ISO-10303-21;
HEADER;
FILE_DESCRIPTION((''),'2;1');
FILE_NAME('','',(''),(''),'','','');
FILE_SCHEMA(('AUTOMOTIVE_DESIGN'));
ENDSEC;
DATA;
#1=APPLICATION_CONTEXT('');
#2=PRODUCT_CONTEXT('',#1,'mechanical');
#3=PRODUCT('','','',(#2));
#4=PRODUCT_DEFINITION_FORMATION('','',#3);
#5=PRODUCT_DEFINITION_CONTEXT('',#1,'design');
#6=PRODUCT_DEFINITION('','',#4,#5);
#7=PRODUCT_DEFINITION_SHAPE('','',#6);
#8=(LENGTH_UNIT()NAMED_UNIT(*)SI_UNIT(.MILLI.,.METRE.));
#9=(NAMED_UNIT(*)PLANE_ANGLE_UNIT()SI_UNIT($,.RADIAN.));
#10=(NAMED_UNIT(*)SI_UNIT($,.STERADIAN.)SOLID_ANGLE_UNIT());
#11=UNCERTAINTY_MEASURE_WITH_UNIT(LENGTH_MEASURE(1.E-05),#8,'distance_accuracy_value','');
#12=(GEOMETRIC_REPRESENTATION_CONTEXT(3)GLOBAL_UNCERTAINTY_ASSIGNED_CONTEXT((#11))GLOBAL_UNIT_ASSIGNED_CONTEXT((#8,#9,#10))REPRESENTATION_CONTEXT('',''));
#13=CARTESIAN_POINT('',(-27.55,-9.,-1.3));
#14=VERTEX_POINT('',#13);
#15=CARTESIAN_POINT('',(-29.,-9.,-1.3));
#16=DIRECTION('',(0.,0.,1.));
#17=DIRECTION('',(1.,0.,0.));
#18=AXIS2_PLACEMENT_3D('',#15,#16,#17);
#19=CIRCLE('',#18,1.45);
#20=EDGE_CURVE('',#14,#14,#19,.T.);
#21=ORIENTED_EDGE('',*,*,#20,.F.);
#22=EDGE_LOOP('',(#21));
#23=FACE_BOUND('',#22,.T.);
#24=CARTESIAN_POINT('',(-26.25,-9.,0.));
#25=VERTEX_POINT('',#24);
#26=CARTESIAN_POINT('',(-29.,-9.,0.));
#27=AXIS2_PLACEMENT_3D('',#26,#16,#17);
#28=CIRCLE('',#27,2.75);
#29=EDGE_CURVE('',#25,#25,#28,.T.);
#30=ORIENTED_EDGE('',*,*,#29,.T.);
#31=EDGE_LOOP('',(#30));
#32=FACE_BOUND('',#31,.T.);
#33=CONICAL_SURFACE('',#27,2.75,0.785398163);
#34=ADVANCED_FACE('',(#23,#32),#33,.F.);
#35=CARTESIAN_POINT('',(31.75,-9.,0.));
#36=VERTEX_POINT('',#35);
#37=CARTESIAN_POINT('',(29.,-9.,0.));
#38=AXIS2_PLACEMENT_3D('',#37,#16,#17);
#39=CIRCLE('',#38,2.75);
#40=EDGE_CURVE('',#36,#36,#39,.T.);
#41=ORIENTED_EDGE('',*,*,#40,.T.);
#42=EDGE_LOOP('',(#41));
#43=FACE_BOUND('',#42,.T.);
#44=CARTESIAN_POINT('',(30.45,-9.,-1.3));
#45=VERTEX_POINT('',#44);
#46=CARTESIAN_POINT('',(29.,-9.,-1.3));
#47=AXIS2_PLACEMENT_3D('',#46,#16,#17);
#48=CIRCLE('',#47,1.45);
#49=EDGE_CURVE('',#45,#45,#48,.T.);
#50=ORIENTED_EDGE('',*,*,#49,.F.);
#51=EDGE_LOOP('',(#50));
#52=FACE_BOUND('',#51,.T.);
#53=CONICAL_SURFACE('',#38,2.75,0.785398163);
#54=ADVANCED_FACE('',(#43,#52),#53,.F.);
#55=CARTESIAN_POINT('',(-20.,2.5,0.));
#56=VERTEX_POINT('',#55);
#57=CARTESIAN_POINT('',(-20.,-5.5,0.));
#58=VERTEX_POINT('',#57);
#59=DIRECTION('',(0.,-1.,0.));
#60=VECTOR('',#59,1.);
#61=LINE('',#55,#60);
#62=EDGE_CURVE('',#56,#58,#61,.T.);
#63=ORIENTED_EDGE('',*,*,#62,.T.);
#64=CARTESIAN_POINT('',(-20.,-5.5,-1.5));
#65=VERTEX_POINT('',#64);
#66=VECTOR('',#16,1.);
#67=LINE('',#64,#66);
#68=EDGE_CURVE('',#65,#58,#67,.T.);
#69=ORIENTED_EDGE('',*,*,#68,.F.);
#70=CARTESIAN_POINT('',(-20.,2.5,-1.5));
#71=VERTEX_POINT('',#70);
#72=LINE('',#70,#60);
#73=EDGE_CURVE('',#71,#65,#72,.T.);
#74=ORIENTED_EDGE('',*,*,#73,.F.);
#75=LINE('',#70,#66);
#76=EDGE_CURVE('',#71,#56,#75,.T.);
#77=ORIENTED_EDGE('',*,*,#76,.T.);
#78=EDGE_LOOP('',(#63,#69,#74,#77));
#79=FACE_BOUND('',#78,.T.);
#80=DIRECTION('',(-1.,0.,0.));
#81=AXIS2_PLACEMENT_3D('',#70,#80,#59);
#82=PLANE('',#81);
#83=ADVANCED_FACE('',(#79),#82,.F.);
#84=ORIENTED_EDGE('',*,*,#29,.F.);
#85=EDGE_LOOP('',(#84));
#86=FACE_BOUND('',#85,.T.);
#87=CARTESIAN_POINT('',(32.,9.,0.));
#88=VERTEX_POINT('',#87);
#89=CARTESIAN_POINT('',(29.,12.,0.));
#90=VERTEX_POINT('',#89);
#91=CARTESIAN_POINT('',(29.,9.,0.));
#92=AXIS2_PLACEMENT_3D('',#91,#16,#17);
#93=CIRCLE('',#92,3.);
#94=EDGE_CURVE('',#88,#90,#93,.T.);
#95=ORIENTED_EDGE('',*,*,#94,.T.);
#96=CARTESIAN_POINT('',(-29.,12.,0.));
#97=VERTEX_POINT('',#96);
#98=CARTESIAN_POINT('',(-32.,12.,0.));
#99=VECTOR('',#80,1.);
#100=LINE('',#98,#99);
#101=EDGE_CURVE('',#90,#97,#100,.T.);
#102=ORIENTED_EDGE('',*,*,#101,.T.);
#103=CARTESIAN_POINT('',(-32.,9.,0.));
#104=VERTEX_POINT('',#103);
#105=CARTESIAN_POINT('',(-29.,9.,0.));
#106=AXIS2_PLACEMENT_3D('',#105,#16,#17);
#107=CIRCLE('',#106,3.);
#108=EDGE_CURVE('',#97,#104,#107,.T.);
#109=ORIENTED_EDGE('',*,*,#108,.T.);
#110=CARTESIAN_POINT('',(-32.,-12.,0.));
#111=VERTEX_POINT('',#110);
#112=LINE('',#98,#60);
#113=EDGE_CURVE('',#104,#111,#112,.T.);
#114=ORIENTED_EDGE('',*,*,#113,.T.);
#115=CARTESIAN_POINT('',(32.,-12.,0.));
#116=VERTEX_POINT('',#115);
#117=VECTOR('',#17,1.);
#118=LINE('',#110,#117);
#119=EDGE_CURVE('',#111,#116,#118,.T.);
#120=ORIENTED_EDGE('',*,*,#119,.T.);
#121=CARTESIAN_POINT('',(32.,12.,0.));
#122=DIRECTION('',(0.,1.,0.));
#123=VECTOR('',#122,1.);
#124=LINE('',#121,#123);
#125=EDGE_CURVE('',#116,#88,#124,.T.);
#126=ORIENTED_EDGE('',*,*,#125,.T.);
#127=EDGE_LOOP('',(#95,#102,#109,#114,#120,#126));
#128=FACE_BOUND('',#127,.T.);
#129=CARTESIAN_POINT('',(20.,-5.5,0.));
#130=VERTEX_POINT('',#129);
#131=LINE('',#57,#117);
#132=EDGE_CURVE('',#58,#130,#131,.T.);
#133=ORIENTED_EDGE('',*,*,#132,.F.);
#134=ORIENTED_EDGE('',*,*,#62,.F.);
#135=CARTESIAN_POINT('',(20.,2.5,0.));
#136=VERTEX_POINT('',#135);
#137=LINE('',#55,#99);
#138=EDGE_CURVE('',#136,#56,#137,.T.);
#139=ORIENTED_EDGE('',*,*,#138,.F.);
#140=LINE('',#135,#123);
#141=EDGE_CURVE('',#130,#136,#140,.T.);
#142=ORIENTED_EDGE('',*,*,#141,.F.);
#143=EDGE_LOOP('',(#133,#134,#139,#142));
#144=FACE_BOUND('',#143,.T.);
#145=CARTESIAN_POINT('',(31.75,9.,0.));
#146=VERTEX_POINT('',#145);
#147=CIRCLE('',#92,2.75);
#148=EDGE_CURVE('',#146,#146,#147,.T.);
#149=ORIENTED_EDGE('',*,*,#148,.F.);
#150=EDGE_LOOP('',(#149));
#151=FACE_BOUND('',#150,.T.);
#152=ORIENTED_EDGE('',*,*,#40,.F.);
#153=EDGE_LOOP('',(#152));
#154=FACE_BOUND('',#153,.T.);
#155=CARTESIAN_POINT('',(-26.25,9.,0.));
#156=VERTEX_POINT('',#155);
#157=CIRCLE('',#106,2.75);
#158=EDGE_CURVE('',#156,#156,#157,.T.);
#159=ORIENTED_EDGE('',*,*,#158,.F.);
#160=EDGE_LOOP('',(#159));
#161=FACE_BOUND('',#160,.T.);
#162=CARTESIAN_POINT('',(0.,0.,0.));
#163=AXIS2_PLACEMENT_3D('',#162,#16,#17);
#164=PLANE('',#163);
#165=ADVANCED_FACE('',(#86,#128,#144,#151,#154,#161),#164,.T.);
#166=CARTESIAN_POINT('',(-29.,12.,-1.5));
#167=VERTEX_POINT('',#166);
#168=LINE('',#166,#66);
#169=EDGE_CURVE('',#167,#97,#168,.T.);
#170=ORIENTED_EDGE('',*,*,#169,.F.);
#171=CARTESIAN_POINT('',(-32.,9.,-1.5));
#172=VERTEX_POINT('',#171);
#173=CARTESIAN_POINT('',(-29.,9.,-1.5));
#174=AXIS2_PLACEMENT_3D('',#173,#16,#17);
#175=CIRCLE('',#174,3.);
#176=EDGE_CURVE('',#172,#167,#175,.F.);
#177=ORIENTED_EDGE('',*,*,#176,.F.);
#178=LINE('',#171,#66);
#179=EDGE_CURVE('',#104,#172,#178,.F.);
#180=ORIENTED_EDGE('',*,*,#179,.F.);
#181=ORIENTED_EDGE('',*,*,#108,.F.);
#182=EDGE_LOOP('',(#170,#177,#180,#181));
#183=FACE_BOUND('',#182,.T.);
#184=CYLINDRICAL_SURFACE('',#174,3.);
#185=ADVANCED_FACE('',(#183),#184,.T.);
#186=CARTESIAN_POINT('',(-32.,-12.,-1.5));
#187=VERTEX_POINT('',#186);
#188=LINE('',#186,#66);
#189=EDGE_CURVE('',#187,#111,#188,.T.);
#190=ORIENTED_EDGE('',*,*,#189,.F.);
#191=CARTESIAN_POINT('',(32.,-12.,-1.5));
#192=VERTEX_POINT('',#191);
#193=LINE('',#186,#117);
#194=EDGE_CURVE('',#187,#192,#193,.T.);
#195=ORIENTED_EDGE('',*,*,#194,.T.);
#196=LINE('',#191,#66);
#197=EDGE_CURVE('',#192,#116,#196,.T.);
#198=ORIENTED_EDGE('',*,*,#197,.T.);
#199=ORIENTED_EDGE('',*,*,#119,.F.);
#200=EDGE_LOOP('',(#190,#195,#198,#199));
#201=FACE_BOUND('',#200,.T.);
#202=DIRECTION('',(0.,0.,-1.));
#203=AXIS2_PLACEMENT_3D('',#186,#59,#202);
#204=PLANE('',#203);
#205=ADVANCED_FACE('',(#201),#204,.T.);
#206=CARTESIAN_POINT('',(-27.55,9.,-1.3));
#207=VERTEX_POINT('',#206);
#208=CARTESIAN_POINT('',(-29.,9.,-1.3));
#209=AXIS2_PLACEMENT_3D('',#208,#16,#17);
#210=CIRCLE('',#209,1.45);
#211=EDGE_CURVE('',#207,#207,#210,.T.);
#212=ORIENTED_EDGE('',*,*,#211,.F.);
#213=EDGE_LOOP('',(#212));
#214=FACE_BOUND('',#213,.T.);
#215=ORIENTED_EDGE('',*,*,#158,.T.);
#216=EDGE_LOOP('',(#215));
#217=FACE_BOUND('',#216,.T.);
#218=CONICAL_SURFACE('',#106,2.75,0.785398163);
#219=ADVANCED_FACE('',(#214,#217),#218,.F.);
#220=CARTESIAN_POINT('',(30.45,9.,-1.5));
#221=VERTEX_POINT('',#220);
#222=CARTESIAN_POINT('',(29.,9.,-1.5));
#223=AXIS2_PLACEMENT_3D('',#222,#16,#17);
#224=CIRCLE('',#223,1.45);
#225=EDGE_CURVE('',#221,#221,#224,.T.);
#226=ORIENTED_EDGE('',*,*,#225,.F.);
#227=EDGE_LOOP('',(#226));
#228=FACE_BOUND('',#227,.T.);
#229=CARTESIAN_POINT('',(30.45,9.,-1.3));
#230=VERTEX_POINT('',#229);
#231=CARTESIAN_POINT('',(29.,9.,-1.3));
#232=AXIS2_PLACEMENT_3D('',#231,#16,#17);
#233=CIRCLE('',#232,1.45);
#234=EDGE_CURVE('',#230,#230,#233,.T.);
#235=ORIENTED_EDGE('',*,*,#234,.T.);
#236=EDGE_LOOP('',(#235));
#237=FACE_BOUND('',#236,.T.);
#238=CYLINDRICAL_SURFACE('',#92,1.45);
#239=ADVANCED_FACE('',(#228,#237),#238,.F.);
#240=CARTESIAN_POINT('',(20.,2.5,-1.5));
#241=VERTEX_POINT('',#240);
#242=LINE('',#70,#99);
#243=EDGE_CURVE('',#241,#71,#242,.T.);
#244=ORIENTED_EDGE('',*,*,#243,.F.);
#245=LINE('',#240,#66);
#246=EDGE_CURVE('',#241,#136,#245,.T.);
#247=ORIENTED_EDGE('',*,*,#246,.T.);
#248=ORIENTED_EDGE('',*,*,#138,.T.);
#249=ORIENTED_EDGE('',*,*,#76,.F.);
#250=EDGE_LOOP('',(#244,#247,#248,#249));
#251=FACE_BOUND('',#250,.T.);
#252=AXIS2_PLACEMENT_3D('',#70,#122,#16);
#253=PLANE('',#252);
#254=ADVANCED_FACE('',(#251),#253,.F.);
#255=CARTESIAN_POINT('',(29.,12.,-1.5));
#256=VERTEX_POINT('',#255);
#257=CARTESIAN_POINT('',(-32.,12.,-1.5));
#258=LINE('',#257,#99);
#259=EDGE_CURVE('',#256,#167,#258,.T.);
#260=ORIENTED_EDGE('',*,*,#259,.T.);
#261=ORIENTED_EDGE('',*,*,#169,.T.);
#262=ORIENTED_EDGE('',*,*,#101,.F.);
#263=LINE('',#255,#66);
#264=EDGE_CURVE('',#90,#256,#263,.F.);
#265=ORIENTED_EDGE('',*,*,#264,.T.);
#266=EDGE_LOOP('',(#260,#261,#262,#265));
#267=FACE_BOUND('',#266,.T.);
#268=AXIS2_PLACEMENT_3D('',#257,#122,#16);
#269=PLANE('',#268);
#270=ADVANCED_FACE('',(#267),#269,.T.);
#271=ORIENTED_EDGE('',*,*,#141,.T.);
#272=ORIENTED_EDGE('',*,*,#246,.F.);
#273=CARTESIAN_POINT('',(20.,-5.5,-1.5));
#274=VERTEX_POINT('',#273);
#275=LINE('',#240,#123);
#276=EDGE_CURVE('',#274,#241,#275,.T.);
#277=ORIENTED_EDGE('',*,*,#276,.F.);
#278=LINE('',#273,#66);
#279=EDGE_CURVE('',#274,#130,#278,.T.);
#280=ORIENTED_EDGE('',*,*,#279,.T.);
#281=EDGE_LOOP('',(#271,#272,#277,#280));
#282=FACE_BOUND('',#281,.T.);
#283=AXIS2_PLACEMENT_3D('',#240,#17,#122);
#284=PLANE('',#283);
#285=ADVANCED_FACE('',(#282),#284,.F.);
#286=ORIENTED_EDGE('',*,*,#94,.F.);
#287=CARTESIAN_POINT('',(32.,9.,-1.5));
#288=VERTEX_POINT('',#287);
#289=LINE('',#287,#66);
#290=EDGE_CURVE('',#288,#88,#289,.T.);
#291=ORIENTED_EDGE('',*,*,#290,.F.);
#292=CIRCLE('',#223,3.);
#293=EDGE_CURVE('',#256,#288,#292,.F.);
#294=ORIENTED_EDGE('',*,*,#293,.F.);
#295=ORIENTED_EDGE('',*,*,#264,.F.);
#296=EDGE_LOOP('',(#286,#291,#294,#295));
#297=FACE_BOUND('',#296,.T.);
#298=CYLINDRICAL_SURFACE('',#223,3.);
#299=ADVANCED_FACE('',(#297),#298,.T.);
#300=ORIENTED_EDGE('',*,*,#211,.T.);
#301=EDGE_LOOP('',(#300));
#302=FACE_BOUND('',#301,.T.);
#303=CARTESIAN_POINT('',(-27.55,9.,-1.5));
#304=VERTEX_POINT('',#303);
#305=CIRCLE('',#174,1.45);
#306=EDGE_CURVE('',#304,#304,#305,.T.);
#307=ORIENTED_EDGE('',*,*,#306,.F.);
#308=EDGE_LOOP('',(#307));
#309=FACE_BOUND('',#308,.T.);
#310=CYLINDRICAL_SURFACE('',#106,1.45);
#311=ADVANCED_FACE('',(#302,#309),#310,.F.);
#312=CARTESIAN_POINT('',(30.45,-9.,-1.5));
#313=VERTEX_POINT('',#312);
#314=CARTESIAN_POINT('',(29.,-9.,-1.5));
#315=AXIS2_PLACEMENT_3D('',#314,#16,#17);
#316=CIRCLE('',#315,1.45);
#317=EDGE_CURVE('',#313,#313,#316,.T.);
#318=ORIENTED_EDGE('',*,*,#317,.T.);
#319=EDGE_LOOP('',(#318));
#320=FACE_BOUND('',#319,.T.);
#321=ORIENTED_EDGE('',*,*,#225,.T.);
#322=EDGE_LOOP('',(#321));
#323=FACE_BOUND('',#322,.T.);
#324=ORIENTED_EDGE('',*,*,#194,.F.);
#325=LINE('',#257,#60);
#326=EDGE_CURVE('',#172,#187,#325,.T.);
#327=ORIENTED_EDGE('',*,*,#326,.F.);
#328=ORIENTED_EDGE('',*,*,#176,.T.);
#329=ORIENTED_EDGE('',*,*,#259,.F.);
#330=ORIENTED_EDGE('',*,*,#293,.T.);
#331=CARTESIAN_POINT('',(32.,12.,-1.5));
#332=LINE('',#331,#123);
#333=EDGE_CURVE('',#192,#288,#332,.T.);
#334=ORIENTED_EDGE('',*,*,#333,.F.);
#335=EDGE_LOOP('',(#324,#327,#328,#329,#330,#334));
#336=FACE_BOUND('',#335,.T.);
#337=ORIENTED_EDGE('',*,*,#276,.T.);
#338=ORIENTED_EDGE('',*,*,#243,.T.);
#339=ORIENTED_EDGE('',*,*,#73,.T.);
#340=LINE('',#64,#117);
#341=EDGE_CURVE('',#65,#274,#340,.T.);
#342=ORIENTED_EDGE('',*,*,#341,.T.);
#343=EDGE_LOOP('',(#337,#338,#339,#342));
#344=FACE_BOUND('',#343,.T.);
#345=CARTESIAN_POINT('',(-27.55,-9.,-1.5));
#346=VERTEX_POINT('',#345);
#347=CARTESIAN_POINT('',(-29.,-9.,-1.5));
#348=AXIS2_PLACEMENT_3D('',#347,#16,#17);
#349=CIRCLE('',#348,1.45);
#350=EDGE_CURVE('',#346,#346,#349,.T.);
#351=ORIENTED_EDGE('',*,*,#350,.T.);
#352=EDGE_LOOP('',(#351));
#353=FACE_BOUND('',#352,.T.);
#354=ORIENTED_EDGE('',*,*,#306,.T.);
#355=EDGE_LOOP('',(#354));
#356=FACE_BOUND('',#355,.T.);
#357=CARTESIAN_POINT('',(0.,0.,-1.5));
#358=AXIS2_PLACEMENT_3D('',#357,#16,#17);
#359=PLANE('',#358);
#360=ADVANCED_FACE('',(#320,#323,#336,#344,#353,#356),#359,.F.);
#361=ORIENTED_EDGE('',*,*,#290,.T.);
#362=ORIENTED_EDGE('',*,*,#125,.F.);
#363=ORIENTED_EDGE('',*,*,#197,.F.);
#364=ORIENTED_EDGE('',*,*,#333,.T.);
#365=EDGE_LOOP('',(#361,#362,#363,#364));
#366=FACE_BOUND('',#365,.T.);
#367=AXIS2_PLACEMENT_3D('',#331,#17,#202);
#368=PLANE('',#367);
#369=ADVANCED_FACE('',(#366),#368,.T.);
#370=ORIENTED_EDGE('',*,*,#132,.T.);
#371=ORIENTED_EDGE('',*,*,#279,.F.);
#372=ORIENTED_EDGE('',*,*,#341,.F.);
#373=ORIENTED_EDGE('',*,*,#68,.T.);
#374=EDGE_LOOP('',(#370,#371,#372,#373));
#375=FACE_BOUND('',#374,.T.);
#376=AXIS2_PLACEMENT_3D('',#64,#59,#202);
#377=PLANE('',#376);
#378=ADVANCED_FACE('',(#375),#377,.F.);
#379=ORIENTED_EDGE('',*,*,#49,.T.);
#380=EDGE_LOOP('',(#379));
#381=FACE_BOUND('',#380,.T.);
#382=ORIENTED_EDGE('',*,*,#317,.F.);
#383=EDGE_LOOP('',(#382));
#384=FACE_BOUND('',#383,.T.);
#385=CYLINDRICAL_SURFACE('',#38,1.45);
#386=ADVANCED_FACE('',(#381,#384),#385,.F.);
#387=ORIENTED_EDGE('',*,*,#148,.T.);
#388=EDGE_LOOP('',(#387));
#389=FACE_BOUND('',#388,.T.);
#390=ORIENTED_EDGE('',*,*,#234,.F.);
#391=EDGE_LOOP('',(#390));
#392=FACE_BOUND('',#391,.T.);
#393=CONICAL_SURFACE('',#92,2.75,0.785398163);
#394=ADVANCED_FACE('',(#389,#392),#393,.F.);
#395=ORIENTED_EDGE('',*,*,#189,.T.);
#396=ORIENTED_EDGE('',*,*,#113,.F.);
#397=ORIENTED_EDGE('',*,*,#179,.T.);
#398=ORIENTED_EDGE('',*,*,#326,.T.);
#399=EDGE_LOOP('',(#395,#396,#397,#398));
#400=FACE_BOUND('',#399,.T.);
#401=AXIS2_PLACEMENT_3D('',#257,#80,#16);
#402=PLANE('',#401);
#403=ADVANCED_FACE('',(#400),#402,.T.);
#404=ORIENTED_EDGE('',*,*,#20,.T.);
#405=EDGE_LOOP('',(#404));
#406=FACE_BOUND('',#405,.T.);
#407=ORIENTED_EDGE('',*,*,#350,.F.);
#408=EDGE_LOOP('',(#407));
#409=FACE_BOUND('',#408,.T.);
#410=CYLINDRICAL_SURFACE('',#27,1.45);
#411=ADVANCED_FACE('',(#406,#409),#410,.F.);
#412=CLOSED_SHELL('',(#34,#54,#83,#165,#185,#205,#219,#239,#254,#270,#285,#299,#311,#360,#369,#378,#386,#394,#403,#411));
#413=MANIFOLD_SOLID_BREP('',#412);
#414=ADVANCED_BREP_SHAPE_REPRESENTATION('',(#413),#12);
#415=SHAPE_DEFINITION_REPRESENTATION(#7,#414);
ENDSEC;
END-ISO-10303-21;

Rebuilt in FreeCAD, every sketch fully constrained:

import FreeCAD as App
import Part
import Sketcher
from FreeCAD import Vector
Q = App.Units.Quantity


def edges_at(feature, points):
    """Names of the edges that pass closest to the given points."""
    edges = feature.Shape.Edges
    near = lambda p: min(range(len(edges)), key=lambda i: edges[i].distToShape(Part.Vertex(*p))[0])
    return sorted({f"Edge{near(p) + 1}" for p in points})

doc = App.newDocument("Part")
body = doc.addObject("PartDesign::Body", "Body")

sketch1 = body.newObject("Sketcher::SketchObject", "Sketch")
sketch1.AttachmentSupport = (doc.getObject("XY_Plane"), [""])
sketch1.MapMode = "FlatFace"
sketch1.addGeometry([
    Part.LineSegment(Vector(-32, 12, 0), Vector(-32, -12, 0)),
    Part.LineSegment(Vector(-32, -12, 0), Vector(32, -12, 0)),
    Part.LineSegment(Vector(32, -12, 0), Vector(32, 12, 0)),
    Part.LineSegment(Vector(32, 12, 0), Vector(-32, 12, 0)),
], False)
sketch1.addConstraint([
    Sketcher.Constraint("Coincident", 0, 2, 1, 1),
    Sketcher.Constraint("Coincident", 1, 2, 2, 1),
    Sketcher.Constraint("Coincident", 2, 2, 3, 1),
    Sketcher.Constraint("Coincident", 3, 2, 0, 1),
    Sketcher.Constraint("Vertical", 0),
    Sketcher.Constraint("Horizontal", 1),
    Sketcher.Constraint("Vertical", 2),
    Sketcher.Constraint("Horizontal", 3),
    Sketcher.Constraint("Symmetric", 0, 2, 2, 2, -1, 1),
    Sketcher.Constraint("DistanceX", 1, 1, 1, 2, 64.0),
    Sketcher.Constraint("DistanceY", 0, 2, 0, 1, 24.0),
])
pad1 = body.newObject("PartDesign::Pad", "Pad")
pad1.Profile = sketch1
pad1.Length = 1.5
pad1.Reversed = True

sketch2 = body.newObject("Sketcher::SketchObject", "Sketch001")
sketch2.AttachmentSupport = (doc.getObject("XY_Plane"), [""])
sketch2.MapMode = "FlatFace"
sketch2.addGeometry([
    Part.LineSegment(Vector(-20, 2.5, 0), Vector(-20, -5.5, 0)),
    Part.LineSegment(Vector(-20, -5.5, 0), Vector(20, -5.5, 0)),
    Part.LineSegment(Vector(20, -5.5, 0), Vector(20, 2.5, 0)),
    Part.LineSegment(Vector(20, 2.5, 0), Vector(-20, 2.5, 0)),
], False)
sketch2.addConstraint([
    Sketcher.Constraint("Coincident", 0, 2, 1, 1),
    Sketcher.Constraint("Coincident", 1, 2, 2, 1),
    Sketcher.Constraint("Coincident", 2, 2, 3, 1),
    Sketcher.Constraint("Coincident", 3, 2, 0, 1),
    Sketcher.Constraint("Vertical", 0),
    Sketcher.Constraint("Horizontal", 1),
    Sketcher.Constraint("Vertical", 2),
    Sketcher.Constraint("Horizontal", 3),
    Sketcher.Constraint("DistanceX", 1, 1, 1, 2, 40.0),
    Sketcher.Constraint("DistanceY", 0, 2, 0, 1, 8.0),
    Sketcher.Constraint("DistanceX", 0, 2, -1, 1, 20.0),
    Sketcher.Constraint("DistanceY", 0, 2, -1, 1, 5.5),
])
pocket1 = body.newObject("PartDesign::Pocket", "Pocket")
pocket1.Profile = sketch2
pocket1.Type = "ThroughAll"
doc.recompute()

fillet = body.newObject("PartDesign::Fillet", "Fillet")
fillet.Base = (pocket1, edges_at(pocket1, [(-32, 12, -0.75), (32, 12, -0.75)]))
fillet.Radius = 3

sketch3 = body.newObject("Sketcher::SketchObject", "Sketch002")
sketch3.AttachmentSupport = (doc.getObject("YZ_Plane"), [""])
sketch3.MapMode = "FlatFace"
sketch3.AttachmentOffset = App.Placement(Vector(0, 0, -29), App.Rotation())
sketch3.addGeometry([
    Part.LineSegment(Vector(9, -1.5, 0), Vector(9, 0, 0)),
    Part.LineSegment(Vector(9, 0, 0), Vector(6.25, 0, 0)),
    Part.LineSegment(Vector(6.25, 0, 0), Vector(7.55, -1.3, 0)),
    Part.LineSegment(Vector(7.55, -1.3, 0), Vector(7.55, -1.5, 0)),
    Part.LineSegment(Vector(7.55, -1.5, 0), Vector(9, -1.5, 0)),
], False)
sketch3.addGeometry(Part.LineSegment(Vector(9, 0, 0), Vector(9, -1.5, 0)), True)
sketch3.addConstraint([
    Sketcher.Constraint("Coincident", 0, 2, 1, 1),
    Sketcher.Constraint("Coincident", 1, 2, 2, 1),
    Sketcher.Constraint("Coincident", 2, 2, 3, 1),
    Sketcher.Constraint("Coincident", 3, 2, 4, 1),
    Sketcher.Constraint("Coincident", 4, 2, 0, 1),
    Sketcher.Constraint("Vertical", 0),
    Sketcher.Constraint("Horizontal", 1),
    Sketcher.Constraint("Vertical", 3),
    Sketcher.Constraint("Horizontal", 4),
    Sketcher.Constraint("Vertical", 5),
    Sketcher.Constraint("Coincident", 5, 1, 0, 2),
    Sketcher.Constraint("PointOnObject", 0, 2, -1),
    Sketcher.Constraint("Horizontal", 3, 2, 5, 2),
    Sketcher.Constraint("Angle", 2, Q("-45 deg")),
    Sketcher.Constraint("DistanceY", 0, 1, 0, 2, 1.5),
    Sketcher.Constraint("DistanceY", 3, 2, 3, 1, 0.2),
    Sketcher.Constraint("DistanceX", -1, 1, 0, 2, 9.0),
    Sketcher.Constraint("DistanceX", 1, 2, 1, 1, 2.75),
])
groove = body.newObject("PartDesign::Groove", "Groove")
groove.Profile = sketch3
groove.ReferenceAxis = (sketch3, ["Axis0"])
groove.Angle = 360
doc.recompute()

linearpattern = body.newObject("PartDesign::LinearPattern", "LinearPattern")
linearpattern.Originals = [groove]
linearpattern.Direction = (doc.getObject("X_Axis"), [""])
linearpattern.Mode = "offset"
linearpattern.Offset = 58
linearpattern.Occurrences = 2
body.Tip = linearpattern
doc.recompute()

linearpattern2 = body.newObject("PartDesign::LinearPattern", "LinearPattern001")
linearpattern2.Originals = [groove]
linearpattern2.Direction = (doc.getObject("Y_Axis"), [""])
linearpattern2.Mode = "offset"
linearpattern2.Offset = 18
linearpattern2.Occurrences = 2
linearpattern2.Reversed = True
body.Tip = linearpattern2
doc.recompute()

datumline = body.newObject("PartDesign::Line", "DatumLine")
datumline.Placement = App.Placement(Vector(0, 0, 0), App.Rotation(Vector(0, 0, 1), Vector(0.955064137, -0.296399215, 0)))
linearpattern3 = body.newObject("PartDesign::LinearPattern", "LinearPattern002")
linearpattern3.Originals = [groove]
linearpattern3.Direction = (datumline, [""])
linearpattern3.Mode = "offset"
linearpattern3.Offset = 60.728906
linearpattern3.Occurrences = 2
body.Tip = linearpattern3

doc.recompute()
